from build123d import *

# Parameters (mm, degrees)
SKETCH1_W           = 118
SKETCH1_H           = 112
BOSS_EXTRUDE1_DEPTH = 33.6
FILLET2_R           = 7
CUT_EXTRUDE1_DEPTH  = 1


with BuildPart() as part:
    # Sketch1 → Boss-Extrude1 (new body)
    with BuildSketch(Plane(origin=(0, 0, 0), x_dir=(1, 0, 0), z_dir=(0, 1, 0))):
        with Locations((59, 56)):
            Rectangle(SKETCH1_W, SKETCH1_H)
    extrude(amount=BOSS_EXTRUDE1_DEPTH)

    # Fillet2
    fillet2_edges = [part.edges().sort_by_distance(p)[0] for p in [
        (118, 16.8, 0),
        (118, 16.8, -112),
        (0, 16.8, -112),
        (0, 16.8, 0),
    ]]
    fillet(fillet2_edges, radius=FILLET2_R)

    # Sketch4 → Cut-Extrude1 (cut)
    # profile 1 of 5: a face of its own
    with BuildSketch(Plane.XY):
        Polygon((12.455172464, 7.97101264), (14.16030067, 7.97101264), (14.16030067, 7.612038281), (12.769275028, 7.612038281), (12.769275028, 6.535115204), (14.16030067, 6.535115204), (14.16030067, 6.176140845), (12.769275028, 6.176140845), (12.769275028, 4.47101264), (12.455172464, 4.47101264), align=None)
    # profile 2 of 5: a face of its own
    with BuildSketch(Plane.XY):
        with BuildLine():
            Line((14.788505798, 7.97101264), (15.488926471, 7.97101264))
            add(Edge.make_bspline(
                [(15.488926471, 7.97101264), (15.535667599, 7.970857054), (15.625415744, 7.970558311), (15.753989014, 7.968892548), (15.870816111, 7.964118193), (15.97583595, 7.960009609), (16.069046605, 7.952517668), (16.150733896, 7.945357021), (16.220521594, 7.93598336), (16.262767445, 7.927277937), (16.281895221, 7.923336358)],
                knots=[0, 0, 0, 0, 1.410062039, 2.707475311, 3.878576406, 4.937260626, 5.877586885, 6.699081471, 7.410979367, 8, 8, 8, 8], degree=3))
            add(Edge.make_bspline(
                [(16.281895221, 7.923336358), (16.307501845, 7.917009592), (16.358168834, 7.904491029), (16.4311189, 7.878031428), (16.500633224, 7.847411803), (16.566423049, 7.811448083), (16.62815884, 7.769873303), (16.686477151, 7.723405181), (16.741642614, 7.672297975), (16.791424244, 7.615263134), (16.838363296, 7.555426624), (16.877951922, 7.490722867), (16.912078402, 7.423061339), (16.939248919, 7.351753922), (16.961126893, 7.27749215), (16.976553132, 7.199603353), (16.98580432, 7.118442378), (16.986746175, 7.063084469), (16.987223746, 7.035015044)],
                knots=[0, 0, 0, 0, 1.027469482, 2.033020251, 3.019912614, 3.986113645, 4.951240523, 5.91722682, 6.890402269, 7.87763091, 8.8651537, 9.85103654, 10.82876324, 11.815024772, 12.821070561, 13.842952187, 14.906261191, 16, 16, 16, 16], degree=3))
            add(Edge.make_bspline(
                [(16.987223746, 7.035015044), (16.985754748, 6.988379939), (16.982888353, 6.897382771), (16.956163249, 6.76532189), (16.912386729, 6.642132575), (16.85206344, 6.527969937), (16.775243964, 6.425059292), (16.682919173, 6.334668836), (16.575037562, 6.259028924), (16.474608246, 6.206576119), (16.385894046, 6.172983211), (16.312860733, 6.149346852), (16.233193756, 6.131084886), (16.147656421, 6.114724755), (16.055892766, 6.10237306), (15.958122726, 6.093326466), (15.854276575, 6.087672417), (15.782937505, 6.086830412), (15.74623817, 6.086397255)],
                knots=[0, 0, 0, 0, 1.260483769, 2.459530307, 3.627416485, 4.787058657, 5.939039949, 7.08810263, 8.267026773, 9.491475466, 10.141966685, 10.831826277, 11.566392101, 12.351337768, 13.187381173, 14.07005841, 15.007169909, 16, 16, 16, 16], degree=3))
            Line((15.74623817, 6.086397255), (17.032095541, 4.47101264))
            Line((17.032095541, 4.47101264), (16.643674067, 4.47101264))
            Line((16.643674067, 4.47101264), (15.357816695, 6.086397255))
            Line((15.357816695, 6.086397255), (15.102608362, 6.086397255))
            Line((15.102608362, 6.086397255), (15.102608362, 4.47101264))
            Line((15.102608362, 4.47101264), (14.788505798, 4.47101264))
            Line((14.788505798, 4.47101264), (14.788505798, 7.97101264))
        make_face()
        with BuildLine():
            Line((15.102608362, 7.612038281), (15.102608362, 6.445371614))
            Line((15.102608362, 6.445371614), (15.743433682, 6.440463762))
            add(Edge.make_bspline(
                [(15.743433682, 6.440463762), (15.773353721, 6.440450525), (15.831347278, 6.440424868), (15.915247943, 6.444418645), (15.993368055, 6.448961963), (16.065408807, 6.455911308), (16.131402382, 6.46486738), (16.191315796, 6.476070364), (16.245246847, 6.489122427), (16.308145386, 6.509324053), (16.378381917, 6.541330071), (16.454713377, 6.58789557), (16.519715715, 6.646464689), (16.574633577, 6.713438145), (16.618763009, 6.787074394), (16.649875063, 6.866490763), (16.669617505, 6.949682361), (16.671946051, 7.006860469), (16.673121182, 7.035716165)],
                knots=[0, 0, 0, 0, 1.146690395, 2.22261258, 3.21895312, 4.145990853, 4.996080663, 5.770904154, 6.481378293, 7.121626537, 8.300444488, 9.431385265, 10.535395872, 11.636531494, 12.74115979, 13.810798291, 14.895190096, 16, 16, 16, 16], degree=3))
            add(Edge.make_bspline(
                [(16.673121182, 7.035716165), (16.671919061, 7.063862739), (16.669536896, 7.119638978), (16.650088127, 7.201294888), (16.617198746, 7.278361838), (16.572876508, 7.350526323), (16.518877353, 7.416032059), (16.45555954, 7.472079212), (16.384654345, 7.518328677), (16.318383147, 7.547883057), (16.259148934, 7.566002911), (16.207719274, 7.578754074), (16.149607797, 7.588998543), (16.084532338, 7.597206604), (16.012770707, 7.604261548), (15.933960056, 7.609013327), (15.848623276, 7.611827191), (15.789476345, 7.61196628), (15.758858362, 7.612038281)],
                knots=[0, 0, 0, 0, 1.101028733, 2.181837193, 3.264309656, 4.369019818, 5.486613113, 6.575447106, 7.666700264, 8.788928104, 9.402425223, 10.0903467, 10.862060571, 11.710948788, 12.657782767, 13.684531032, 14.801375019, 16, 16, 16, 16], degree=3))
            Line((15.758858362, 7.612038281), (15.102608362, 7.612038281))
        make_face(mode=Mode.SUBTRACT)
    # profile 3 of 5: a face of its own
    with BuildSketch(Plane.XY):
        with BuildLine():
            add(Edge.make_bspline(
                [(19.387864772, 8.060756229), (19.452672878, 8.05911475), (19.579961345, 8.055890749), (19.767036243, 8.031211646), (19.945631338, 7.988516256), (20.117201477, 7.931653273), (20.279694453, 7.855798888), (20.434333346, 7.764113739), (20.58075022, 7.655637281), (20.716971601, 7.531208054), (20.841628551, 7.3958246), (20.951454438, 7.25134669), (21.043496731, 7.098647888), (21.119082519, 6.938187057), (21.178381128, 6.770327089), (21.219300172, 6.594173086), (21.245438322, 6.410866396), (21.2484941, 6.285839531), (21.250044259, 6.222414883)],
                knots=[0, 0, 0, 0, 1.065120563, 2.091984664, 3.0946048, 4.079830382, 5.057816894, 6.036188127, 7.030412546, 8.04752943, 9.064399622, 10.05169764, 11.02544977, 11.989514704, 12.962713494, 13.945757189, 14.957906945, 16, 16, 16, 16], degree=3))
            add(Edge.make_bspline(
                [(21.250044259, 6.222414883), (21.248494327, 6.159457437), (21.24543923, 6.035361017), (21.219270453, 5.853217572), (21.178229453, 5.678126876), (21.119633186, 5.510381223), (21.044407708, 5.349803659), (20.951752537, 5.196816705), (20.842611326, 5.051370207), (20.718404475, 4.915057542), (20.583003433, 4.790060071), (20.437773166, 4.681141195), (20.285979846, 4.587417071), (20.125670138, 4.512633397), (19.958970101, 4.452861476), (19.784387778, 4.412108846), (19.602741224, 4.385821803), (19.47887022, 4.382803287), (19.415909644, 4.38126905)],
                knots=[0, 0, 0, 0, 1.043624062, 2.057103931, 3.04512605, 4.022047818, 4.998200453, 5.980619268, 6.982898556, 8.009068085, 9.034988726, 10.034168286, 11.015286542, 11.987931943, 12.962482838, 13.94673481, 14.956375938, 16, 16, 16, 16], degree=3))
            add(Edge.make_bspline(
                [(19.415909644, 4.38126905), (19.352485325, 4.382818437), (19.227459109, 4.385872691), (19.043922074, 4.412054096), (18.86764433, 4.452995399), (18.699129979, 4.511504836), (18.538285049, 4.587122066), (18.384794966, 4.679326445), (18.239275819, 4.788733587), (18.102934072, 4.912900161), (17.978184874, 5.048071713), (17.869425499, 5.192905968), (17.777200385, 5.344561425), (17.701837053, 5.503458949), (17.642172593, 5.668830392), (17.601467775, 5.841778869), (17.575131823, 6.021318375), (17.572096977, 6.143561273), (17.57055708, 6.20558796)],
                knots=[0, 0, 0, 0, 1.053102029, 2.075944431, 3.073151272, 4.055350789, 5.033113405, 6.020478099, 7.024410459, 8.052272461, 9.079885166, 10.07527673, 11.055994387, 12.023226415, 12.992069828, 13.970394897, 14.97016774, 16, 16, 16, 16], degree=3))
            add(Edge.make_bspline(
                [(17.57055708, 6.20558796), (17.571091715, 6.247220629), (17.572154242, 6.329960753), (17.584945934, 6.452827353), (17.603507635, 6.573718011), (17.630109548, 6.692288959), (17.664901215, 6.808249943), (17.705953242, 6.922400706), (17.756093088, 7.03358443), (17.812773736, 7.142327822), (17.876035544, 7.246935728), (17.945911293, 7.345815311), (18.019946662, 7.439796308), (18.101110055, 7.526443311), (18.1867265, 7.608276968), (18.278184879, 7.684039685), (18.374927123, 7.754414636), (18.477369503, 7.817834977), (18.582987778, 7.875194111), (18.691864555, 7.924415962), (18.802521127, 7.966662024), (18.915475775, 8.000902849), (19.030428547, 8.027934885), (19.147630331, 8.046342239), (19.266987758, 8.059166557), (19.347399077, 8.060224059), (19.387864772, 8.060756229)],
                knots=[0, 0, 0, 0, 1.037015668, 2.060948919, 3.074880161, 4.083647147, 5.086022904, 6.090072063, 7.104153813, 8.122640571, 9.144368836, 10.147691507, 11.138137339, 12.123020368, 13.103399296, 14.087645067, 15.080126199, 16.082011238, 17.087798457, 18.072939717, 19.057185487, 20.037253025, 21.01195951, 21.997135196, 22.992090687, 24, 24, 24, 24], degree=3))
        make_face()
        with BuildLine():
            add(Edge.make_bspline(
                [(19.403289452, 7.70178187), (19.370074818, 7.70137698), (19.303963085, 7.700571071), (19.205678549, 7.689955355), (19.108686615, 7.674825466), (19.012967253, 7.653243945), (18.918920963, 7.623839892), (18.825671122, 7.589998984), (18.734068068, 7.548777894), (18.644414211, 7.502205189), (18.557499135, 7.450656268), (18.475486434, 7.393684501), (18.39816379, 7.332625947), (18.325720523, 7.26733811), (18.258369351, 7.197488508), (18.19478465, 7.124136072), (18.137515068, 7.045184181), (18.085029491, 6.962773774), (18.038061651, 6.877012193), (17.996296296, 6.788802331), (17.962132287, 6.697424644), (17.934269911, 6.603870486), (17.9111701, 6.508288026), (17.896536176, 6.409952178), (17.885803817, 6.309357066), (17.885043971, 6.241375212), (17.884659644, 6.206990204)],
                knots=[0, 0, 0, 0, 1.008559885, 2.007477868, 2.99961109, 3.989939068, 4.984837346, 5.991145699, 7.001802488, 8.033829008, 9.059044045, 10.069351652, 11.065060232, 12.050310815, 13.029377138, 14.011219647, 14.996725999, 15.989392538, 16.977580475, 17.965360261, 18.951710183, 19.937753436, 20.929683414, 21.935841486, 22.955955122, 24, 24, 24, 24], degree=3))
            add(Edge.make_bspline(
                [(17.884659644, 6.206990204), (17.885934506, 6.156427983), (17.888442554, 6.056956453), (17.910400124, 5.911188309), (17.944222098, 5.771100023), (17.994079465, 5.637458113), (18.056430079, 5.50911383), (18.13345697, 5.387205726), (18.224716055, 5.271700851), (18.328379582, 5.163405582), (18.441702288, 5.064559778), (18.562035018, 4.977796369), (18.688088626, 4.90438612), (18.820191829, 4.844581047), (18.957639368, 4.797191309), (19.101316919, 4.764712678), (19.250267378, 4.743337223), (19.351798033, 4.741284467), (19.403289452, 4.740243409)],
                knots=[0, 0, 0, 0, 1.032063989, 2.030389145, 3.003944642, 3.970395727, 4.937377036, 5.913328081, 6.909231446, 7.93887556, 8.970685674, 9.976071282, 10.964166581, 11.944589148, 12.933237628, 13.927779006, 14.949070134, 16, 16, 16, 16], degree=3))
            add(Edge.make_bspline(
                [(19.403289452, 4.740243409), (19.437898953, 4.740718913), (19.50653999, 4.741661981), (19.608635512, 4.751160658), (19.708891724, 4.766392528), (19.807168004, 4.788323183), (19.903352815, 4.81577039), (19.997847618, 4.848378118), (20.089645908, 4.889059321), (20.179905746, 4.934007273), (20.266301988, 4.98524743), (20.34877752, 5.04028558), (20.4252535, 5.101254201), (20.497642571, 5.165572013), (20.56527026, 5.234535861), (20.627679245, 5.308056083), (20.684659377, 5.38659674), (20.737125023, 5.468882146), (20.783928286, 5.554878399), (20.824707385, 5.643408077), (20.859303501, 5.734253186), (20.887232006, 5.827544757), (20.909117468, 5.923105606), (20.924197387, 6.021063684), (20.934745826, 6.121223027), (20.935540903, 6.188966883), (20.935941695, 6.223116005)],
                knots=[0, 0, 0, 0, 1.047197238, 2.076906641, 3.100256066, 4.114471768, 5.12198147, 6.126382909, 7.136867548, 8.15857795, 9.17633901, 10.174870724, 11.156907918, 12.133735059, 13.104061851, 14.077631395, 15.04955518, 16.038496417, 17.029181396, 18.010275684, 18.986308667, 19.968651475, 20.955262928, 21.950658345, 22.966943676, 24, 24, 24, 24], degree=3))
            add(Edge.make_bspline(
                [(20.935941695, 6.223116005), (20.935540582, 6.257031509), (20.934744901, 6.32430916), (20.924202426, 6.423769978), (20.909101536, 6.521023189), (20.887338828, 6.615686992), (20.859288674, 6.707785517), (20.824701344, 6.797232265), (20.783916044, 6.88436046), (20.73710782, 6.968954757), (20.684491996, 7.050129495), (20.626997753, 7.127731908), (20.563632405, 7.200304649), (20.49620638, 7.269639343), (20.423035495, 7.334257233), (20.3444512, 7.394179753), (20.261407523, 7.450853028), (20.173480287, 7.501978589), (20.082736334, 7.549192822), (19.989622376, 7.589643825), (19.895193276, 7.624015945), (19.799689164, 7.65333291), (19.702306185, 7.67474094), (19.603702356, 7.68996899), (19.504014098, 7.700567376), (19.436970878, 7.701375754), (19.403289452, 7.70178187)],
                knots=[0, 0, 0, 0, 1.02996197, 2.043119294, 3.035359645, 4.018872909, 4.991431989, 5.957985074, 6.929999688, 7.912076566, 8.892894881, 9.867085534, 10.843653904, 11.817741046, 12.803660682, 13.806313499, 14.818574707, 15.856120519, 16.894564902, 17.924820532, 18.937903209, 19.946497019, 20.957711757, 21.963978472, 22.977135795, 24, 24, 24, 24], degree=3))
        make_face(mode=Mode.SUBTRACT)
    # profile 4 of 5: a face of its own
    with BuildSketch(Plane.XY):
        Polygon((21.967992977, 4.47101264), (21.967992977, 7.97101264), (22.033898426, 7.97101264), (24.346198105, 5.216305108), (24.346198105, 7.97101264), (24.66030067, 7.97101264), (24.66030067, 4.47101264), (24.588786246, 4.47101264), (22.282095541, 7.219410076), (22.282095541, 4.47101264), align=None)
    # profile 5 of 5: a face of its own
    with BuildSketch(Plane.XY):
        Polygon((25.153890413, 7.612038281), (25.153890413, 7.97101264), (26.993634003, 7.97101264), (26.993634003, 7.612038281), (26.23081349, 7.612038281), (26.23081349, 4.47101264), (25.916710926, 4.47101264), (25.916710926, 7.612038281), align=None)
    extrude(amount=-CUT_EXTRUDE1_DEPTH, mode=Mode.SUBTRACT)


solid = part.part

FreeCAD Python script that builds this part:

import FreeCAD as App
import Part
import Sketcher

V = App.Vector


def edges_at(feature, points):
    """Names of the edges that pass closest to the given points."""
    edges = feature.Shape.Edges
    near = lambda p: min(range(len(edges)), key=lambda i: edges[i].distToShape(Part.Vertex(*p))[0])
    return sorted({f"Edge{near(p) + 1}" for p in points})

doc = App.newDocument("Part")
body = doc.addObject("PartDesign::Body", "Body")

sketch1 = body.newObject("Sketcher::SketchObject", "Sketch")
sketch1.AttachmentSupport = (doc.getObject("XZ_Plane"), [""])
sketch1.MapMode = "FlatFace"
sketch1.addGeometry(Part.LineSegment(V(0, -112, 0), V(0, 0, 0)), False)
sketch1.addGeometry(Part.LineSegment(V(0, 0, 0), V(118, 0, 0)), False)
sketch1.addGeometry(Part.LineSegment(V(118, 0, 0), V(118, -112, 0)), False)
sketch1.addGeometry(Part.LineSegment(V(118, -112, 0), V(0, -112, 0)), False)
sketch1.addConstraint(Sketcher.Constraint("Coincident", 0, 2, 1, 1))
sketch1.addConstraint(Sketcher.Constraint("Coincident", 1, 2, 2, 1))
sketch1.addConstraint(Sketcher.Constraint("Coincident", 2, 2, 3, 1))
sketch1.addConstraint(Sketcher.Constraint("Coincident", 3, 2, 0, 1))
sketch1.addConstraint(Sketcher.Constraint("Vertical", 0))
sketch1.addConstraint(Sketcher.Constraint("Horizontal", 1))
sketch1.addConstraint(Sketcher.Constraint("Vertical", 2))
sketch1.addConstraint(Sketcher.Constraint("Horizontal", 3))
sketch1.addConstraint(Sketcher.Constraint("Coincident", 0, 2, -1, 1))
sketch1.addConstraint(Sketcher.Constraint("DistanceX", 1, 1, 1, 2, 118.0))
sketch1.addConstraint(Sketcher.Constraint("DistanceY", 0, 1, 0, 2, 112.0))
pad1 = body.newObject("PartDesign::Pad", "Pad")
pad1.Profile = sketch1
pad1.Length = 33.6
pad1.Reversed = True
doc.recompute()

fillet = body.newObject("PartDesign::Fillet", "Fillet")
fillet.Base = (pad1, edges_at(pad1, [
    (118, 16.8, 0),
    (118, 16.8, -112),
    (0, 16.8, -112),
    (0, 16.8, 0),
]))
fillet.Radius = 7

sketch2 = body.newObject("Sketcher::SketchObject", "Sketch001")
sketch2.AttachmentSupport = (doc.getObject("XY_Plane"), [""])
sketch2.MapMode = "FlatFace"
sketch2.addGeometry(Part.LineSegment(V(14.160301, 7.971013, 0), V(12.455172, 7.971013, 0)), False)
sketch2.addGeometry(Part.LineSegment(V(12.455172, 7.971013, 0), V(12.455172, 4.471013, 0)), False)
sketch2.addGeometry(Part.LineSegment(V(12.455172, 4.471013, 0), V(12.769275, 4.471013, 0)), False)
sketch2.addGeometry(Part.LineSegment(V(12.769275, 4.471013, 0), V(12.769275, 6.176141, 0)), False)
sketch2.addGeometry(Part.LineSegment(V(12.769275, 6.176141, 0), V(14.160301, 6.176141, 0)), False)
sketch2.addGeometry(Part.LineSegment(V(14.160301, 6.176141, 0), V(14.160301, 6.535115, 0)), False)
sketch2.addGeometry(Part.LineSegment(V(14.160301, 6.535115, 0), V(12.769275, 6.535115, 0)), False)
sketch2.addGeometry(Part.LineSegment(V(12.769275, 6.535115, 0), V(12.769275, 7.612038, 0)), False)
sketch2.addGeometry(Part.LineSegment(V(12.769275, 7.612038, 0), V(14.160301, 7.612038, 0)), False)
sketch2.addGeometry(Part.LineSegment(V(14.160301, 7.612038, 0), V(14.160301, 7.971013, 0)), False)
sketch2.addGeometry(Part.LineSegment(V(15.488926, 7.971013, 0), V(14.788506, 7.971013, 0)), False)
sketch2.addGeometry(Part.LineSegment(V(14.788506, 7.971013, 0), V(14.788506, 4.471013, 0)), False)
sketch2.addGeometry(Part.LineSegment(V(14.788506, 4.471013, 0), V(15.102608, 4.471013, 0)), False)
sketch2.addGeometry(Part.LineSegment(V(15.102608, 4.471013, 0), V(15.102608, 6.086397, 0)), False)
sketch2.addGeometry(Part.LineSegment(V(15.102608, 6.086397, 0), V(15.357817, 6.086397, 0)), False)
sketch2.addGeometry(Part.LineSegment(V(15.357817, 6.086397, 0), V(16.643674, 4.471013, 0)), False)
sketch2.addGeometry(Part.LineSegment(V(16.643674, 4.471013, 0), V(17.032096, 4.471013, 0)), False)
sketch2.addGeometry(Part.LineSegment(V(17.032096, 4.471013, 0), V(15.746238, 6.086397, 0)), False)
sketch2.addGeometry(Part.BSplineCurve([V(16.987224, 7.035015, 0), V(16.985755, 6.98838, 0), V(16.982888, 6.897383, 0), V(16.956163, 6.765322, 0), V(16.912387, 6.642133, 0), V(16.852063, 6.52797, 0), V(16.775244, 6.425059, 0), V(16.682919, 6.334669, 0), V(16.575038, 6.259029, 0), V(16.474608, 6.206576, 0), V(16.385894, 6.172983, 0), V(16.312861, 6.149347, 0), V(16.233194, 6.131085, 0), V(16.147656, 6.114725, 0), V(16.055893, 6.102373, 0), V(15.958123, 6.093326, 0), V(15.854277, 6.087672, 0), V(15.782938, 6.08683, 0), V(15.746238, 6.086397, 0)], [4, 1, 1, 1, 1, 1, 1, 1, 1, 1, 1, 1, 1, 1, 1, 1, 4], [0, 1.260483769, 2.459530307, 3.627416485, 4.787058657, 5.939039949, 7.08810263, 8.267026773, 9.491475466, 10.141966685, 10.831826277, 11.566392101, 12.351337768, 13.187381173, 14.07005841, 15.007169909, 16], False, 3, [1, 1, 1, 1, 1, 1, 1, 1, 1, 1, 1, 1, 1, 1, 1, 1, 1, 1, 1], False), False)
sketch2.addGeometry(Part.BSplineCurve([V(16.281895, 7.923336, 0), V(16.307502, 7.91701, 0), V(16.358169, 7.904491, 0), V(16.431119, 7.878031, 0), V(16.500633, 7.847412, 0), V(16.566423, 7.811448, 0), V(16.628159, 7.769873, 0), V(16.686477, 7.723405, 0), V(16.741643, 7.672298, 0), V(16.791424, 7.615263, 0), V(16.838363, 7.555427, 0), V(16.877952, 7.490723, 0), V(16.912078, 7.423061, 0), V(16.939249, 7.351754, 0), V(16.961127, 7.277492, 0), V(16.976553, 7.199603, 0), V(16.985804, 7.118442, 0), V(16.986746, 7.063084, 0), V(16.987224, 7.035015, 0)], [4, 1, 1, 1, 1, 1, 1, 1, 1, 1, 1, 1, 1, 1, 1, 1, 4], [0, 1.027469482, 2.033020251, 3.019912614, 3.986113645, 4.951240523, 5.91722682, 6.890402269, 7.87763091, 8.8651537, 9.85103654, 10.82876324, 11.815024772, 12.821070561, 13.842952187, 14.906261191, 16], False, 3, [1, 1, 1, 1, 1, 1, 1, 1, 1, 1, 1, 1, 1, 1, 1, 1, 1, 1, 1], False), False)
sketch2.addGeometry(Part.BSplineCurve([V(15.488926, 7.971013, 0), V(15.535668, 7.970857, 0), V(15.625416, 7.970558, 0), V(15.753989, 7.968893, 0), V(15.870816, 7.964118, 0), V(15.975836, 7.96001, 0), V(16.069047, 7.952518, 0), V(16.150734, 7.945357, 0), V(16.220522, 7.935983, 0), V(16.262767, 7.927278, 0), V(16.281895, 7.923336, 0)], [4, 1, 1, 1, 1, 1, 1, 1, 4], [0, 1.410062039, 2.707475311, 3.878576406, 4.937260626, 5.877586885, 6.699081471, 7.410979367, 8], False, 3, [1, 1, 1, 1, 1, 1, 1, 1, 1, 1, 1], False), False)
sketch2.addGeometry(Part.LineSegment(V(15.102608, 7.612038, 0), V(15.758858, 7.612038, 0)), False)
sketch2.addGeometry(Part.BSplineCurve([V(16.673121, 7.035716, 0), V(16.671919, 7.063863, 0), V(16.669537, 7.119639, 0), V(16.650088, 7.201295, 0), V(16.617199, 7.278362, 0), V(16.572877, 7.350526, 0), V(16.518877, 7.416032, 0), V(16.45556, 7.472079, 0), V(16.384654, 7.518329, 0), V(16.318383, 7.547883, 0), V(16.259149, 7.566003, 0), V(16.207719, 7.578754, 0), V(16.149608, 7.588999, 0), V(16.084532, 7.597207, 0), V(16.012771, 7.604262, 0), V(15.93396, 7.609013, 0), V(15.848623, 7.611827, 0), V(15.789476, 7.611966, 0), V(15.758858, 7.612038, 0)], [4, 1, 1, 1, 1, 1, 1, 1, 1, 1, 1, 1, 1, 1, 1, 1, 4], [0, 1.101028733, 2.181837193, 3.264309656, 4.369019818, 5.486613113, 6.575447106, 7.666700264, 8.788928104, 9.402425223, 10.0903467, 10.862060571, 11.710948788, 12.657782767, 13.684531032, 14.801375019, 16], False, 3, [1, 1, 1, 1, 1, 1, 1, 1, 1, 1, 1, 1, 1, 1, 1, 1, 1, 1, 1], False), False)
sketch2.addGeometry(Part.BSplineCurve([V(15.743434, 6.440464, 0), V(15.773354, 6.440451, 0), V(15.831347, 6.440425, 0), V(15.915248, 6.444419, 0), V(15.993368, 6.448962, 0), V(16.065409, 6.455911, 0), V(16.131402, 6.464867, 0), V(16.191316, 6.47607, 0), V(16.245247, 6.489122, 0), V(16.308145, 6.509324, 0), V(16.378382, 6.54133, 0), V(16.454713, 6.587896, 0), V(16.519716, 6.646465, 0), V(16.574634, 6.713438, 0), V(16.618763, 6.787074, 0), V(16.649875, 6.866491, 0), V(16.669618, 6.949682, 0), V(16.671946, 7.00686, 0), V(16.673121, 7.035716, 0)], [4, 1, 1, 1, 1, 1, 1, 1, 1, 1, 1, 1, 1, 1, 1, 1, 4], [0, 1.146690395, 2.22261258, 3.21895312, 4.145990853, 4.996080663, 5.770904154, 6.481378293, 7.121626537, 8.300444488, 9.431385265, 10.535395872, 11.636531494, 12.74115979, 13.810798291, 14.895190096, 16], False, 3, [1, 1, 1, 1, 1, 1, 1, 1, 1, 1, 1, 1, 1, 1, 1, 1, 1, 1, 1], False), False)
sketch2.addGeometry(Part.LineSegment(V(15.743434, 6.440464, 0), V(15.102608, 6.445372, 0)), False)
sketch2.addGeometry(Part.LineSegment(V(15.102608, 6.445372, 0), V(15.102608, 7.612038, 0)), False)
sketch2.addGeometry(Part.BSplineCurve([V(19.387865, 8.060756, 0), V(19.452673, 8.059115, 0), V(19.579961, 8.055891, 0), V(19.767036, 8.031212, 0), V(19.945631, 7.988516, 0), V(20.117201, 7.931653, 0), V(20.279694, 7.855799, 0), V(20.434333, 7.764114, 0), V(20.58075, 7.655637, 0), V(20.716972, 7.531208, 0), V(20.841629, 7.395825, 0), V(20.951454, 7.251347, 0), V(21.043497, 7.098648, 0), V(21.119083, 6.938187, 0), V(21.178381, 6.770327, 0), V(21.2193, 6.594173, 0), V(21.245438, 6.410866, 0), V(21.248494, 6.28584, 0), V(21.250044, 6.222415, 0)], [4, 1, 1, 1, 1, 1, 1, 1, 1, 1, 1, 1, 1, 1, 1, 1, 4], [0, 1.065120563, 2.091984664, 3.0946048, 4.079830382, 5.057816894, 6.036188127, 7.030412546, 8.04752943, 9.064399622, 10.05169764, 11.02544977, 11.989514704, 12.962713494, 13.945757189, 14.957906945, 16], False, 3, [1, 1, 1, 1, 1, 1, 1, 1, 1, 1, 1, 1, 1, 1, 1, 1, 1, 1, 1], False), False)
sketch2.addGeometry(Part.BSplineCurve([V(17.570557, 6.205588, 0), V(17.571092, 6.247221, 0), V(17.572154, 6.329961, 0), V(17.584946, 6.452827, 0), V(17.603508, 6.573718, 0), V(17.63011, 6.692289, 0), V(17.664901, 6.80825, 0), V(17.705953, 6.922401, 0), V(17.756093, 7.033584, 0), V(17.812774, 7.142328, 0), V(17.876036, 7.246936, 0), V(17.945911, 7.345815, 0), V(18.019947, 7.439796, 0), V(18.10111, 7.526443, 0), V(18.186726, 7.608277, 0), V(18.278185, 7.68404, 0), V(18.374927, 7.754415, 0), V(18.47737, 7.817835, 0), V(18.582988, 7.875194, 0), V(18.691865, 7.924416, 0), V(18.802521, 7.966662, 0), V(18.915476, 8.000903, 0), V(19.030429, 8.027935, 0), V(19.14763, 8.046342, 0), V(19.266988, 8.059167, 0), V(19.347399, 8.060224, 0), V(19.387865, 8.060756, 0)], [4, 1, 1, 1, 1, 1, 1, 1, 1, 1, 1, 1, 1, 1, 1, 1, 1, 1, 1, 1, 1, 1, 1, 1, 4], [0, 1.037015668, 2.060948919, 3.074880161, 4.083647147, 5.086022904, 6.090072063, 7.104153813, 8.122640571, 9.144368836, 10.147691507, 11.138137339, 12.123020368, 13.103399296, 14.087645067, 15.080126199, 16.082011238, 17.087798457, 18.072939717, 19.057185487, 20.037253025, 21.01195951, 21.997135196, 22.992090687, 24], False, 3, [1, 1, 1, 1, 1, 1, 1, 1, 1, 1, 1, 1, 1, 1, 1, 1, 1, 1, 1, 1, 1, 1, 1, 1, 1, 1, 1], False), False)
sketch2.addGeometry(Part.BSplineCurve([V(19.41591, 4.381269, 0), V(19.352485, 4.382818, 0), V(19.227459, 4.385873, 0), V(19.043922, 4.412054, 0), V(18.867644, 4.452995, 0), V(18.69913, 4.511505, 0), V(18.538285, 4.587122, 0), V(18.384795, 4.679326, 0), V(18.239276, 4.788734, 0), V(18.102934, 4.9129, 0), V(17.978185, 5.048072, 0), V(17.869425, 5.192906, 0), V(17.7772, 5.344561, 0), V(17.701837, 5.503459, 0), V(17.642173, 5.66883, 0), V(17.601468, 5.841779, 0), V(17.575132, 6.021318, 0), V(17.572097, 6.143561, 0), V(17.570557, 6.205588, 0)], [4, 1, 1, 1, 1, 1, 1, 1, 1, 1, 1, 1, 1, 1, 1, 1, 4], [0, 1.053102029, 2.075944431, 3.073151272, 4.055350789, 5.033113405, 6.020478099, 7.024410459, 8.052272461, 9.079885166, 10.07527673, 11.055994387, 12.023226415, 12.992069828, 13.970394897, 14.97016774, 16], False, 3, [1, 1, 1, 1, 1, 1, 1, 1, 1, 1, 1, 1, 1, 1, 1, 1, 1, 1, 1], False), False)
sketch2.addGeometry(Part.BSplineCurve([V(21.250044, 6.222415, 0), V(21.248494, 6.159457, 0), V(21.245439, 6.035361, 0), V(21.21927, 5.853218, 0), V(21.178229, 5.678127, 0), V(21.119633, 5.510381, 0), V(21.044408, 5.349804, 0), V(20.951753, 5.196817, 0), V(20.842611, 5.05137, 0), V(20.718404, 4.915058, 0), V(20.583003, 4.79006, 0), V(20.437773, 4.681141, 0), V(20.28598, 4.587417, 0), V(20.12567, 4.512633, 0), V(19.95897, 4.452861, 0), V(19.784388, 4.412109, 0), V(19.602741, 4.385822, 0), V(19.47887, 4.382803, 0), V(19.41591, 4.381269, 0)], [4, 1, 1, 1, 1, 1, 1, 1, 1, 1, 1, 1, 1, 1, 1, 1, 4], [0, 1.043624062, 2.057103931, 3.04512605, 4.022047818, 4.998200453, 5.980619268, 6.982898556, 8.009068085, 9.034988726, 10.034168286, 11.015286542, 11.987931943, 12.962482838, 13.94673481, 14.956375938, 16], False, 3, [1, 1, 1, 1, 1, 1, 1, 1, 1, 1, 1, 1, 1, 1, 1, 1, 1, 1, 1], False), False)
sketch2.addGeometry(Part.BSplineCurve([V(20.935942, 6.223116, 0), V(20.935541, 6.257032, 0), V(20.934745, 6.324309, 0), V(20.924202, 6.42377, 0), V(20.909102, 6.521023, 0), V(20.887339, 6.615687, 0), V(20.859289, 6.707786, 0), V(20.824701, 6.797232, 0), V(20.783916, 6.88436, 0), V(20.737108, 6.968955, 0), V(20.684492, 7.050129, 0), V(20.626998, 7.127732, 0), V(20.563632, 7.200305, 0), V(20.496206, 7.269639, 0), V(20.423035, 7.334257, 0), V(20.344451, 7.39418, 0), V(20.261408, 7.450853, 0), V(20.17348, 7.501979, 0), V(20.082736, 7.549193, 0), V(19.989622, 7.589644, 0), V(19.895193, 7.624016, 0), V(19.799689, 7.653333, 0), V(19.702306, 7.674741, 0), V(19.603702, 7.689969, 0), V(19.504014, 7.700567, 0), V(19.436971, 7.701376, 0), V(19.403289, 7.701782, 0)], [4, 1, 1, 1, 1, 1, 1, 1, 1, 1, 1, 1, 1, 1, 1, 1, 1, 1, 1, 1, 1, 1, 1, 1, 4], [0, 1.02996197, 2.043119294, 3.035359645, 4.018872909, 4.991431989, 5.957985074, 6.929999688, 7.912076566, 8.892894881, 9.867085534, 10.843653904, 11.817741046, 12.803660682, 13.806313499, 14.818574707, 15.856120519, 16.894564902, 17.924820532, 18.937903209, 19.946497019, 20.957711757, 21.963978472, 22.977135795, 24], False, 3, [1, 1, 1, 1, 1, 1, 1, 1, 1, 1, 1, 1, 1, 1, 1, 1, 1, 1, 1, 1, 1, 1, 1, 1, 1, 1, 1], False), False)
sketch2.addGeometry(Part.BSplineCurve([V(19.403289, 4.740243, 0), V(19.437899, 4.740719, 0), V(19.50654, 4.741662, 0), V(19.608636, 4.751161, 0), V(19.708892, 4.766393, 0), V(19.807168, 4.788323, 0), V(19.903353, 4.81577, 0), V(19.997848, 4.848378, 0), V(20.089646, 4.889059, 0), V(20.179906, 4.934007, 0), V(20.266302, 4.985247, 0), V(20.348778, 5.040286, 0), V(20.425254, 5.101254, 0), V(20.497643, 5.165572, 0), V(20.56527, 5.234536, 0), V(20.627679, 5.308056, 0), V(20.684659, 5.386597, 0), V(20.737125, 5.468882, 0), V(20.783928, 5.554878, 0), V(20.824707, 5.643408, 0), V(20.859304, 5.734253, 0), V(20.887232, 5.827545, 0), V(20.909117, 5.923106, 0), V(20.924197, 6.021064, 0), V(20.934746, 6.121223, 0), V(20.935541, 6.188967, 0), V(20.935942, 6.223116, 0)], [4, 1, 1, 1, 1, 1, 1, 1, 1, 1, 1, 1, 1, 1, 1, 1, 1, 1, 1, 1, 1, 1, 1, 1, 4], [0, 1.047197238, 2.076906641, 3.100256066, 4.114471768, 5.12198147, 6.126382909, 7.136867548, 8.15857795, 9.17633901, 10.174870724, 11.156907918, 12.133735059, 13.104061851, 14.077631395, 15.04955518, 16.038496417, 17.029181396, 18.010275684, 18.986308667, 19.968651475, 20.955262928, 21.950658345, 22.966943676, 24], False, 3, [1, 1, 1, 1, 1, 1, 1, 1, 1, 1, 1, 1, 1, 1, 1, 1, 1, 1, 1, 1, 1, 1, 1, 1, 1, 1, 1], False), False)
sketch2.addGeometry(Part.BSplineCurve([V(17.88466, 6.20699, 0), V(17.885935, 6.156428, 0), V(17.888443, 6.056956, 0), V(17.9104, 5.911188, 0), V(17.944222, 5.7711, 0), V(17.994079, 5.637458, 0), V(18.05643, 5.509114, 0), V(18.133457, 5.387206, 0), V(18.224716, 5.271701, 0), V(18.32838, 5.163406, 0), V(18.441702, 5.06456, 0), V(18.562035, 4.977796, 0), V(18.688089, 4.904386, 0), V(18.820192, 4.844581, 0), V(18.957639, 4.797191, 0), V(19.101317, 4.764713, 0), V(19.250267, 4.743337, 0), V(19.351798, 4.741284, 0), V(19.403289, 4.740243, 0)], [4, 1, 1, 1, 1, 1, 1, 1, 1, 1, 1, 1, 1, 1, 1, 1, 4], [0, 1.032063989, 2.030389145, 3.003944642, 3.970395727, 4.937377036, 5.913328081, 6.909231446, 7.93887556, 8.970685674, 9.976071282, 10.964166581, 11.944589148, 12.933237628, 13.927779006, 14.949070134, 16], False, 3, [1, 1, 1, 1, 1, 1, 1, 1, 1, 1, 1, 1, 1, 1, 1, 1, 1, 1, 1], False), False)
sketch2.addGeometry(Part.BSplineCurve([V(19.403289, 7.701782, 0), V(19.370075, 7.701377, 0), V(19.303963, 7.700571, 0), V(19.205679, 7.689955, 0), V(19.108687, 7.674825, 0), V(19.012967, 7.653244, 0), V(18.918921, 7.62384, 0), V(18.825671, 7.589999, 0), V(18.734068, 7.548778, 0), V(18.644414, 7.502205, 0), V(18.557499, 7.450656, 0), V(18.475486, 7.393685, 0), V(18.398164, 7.332626, 0), V(18.325721, 7.267338, 0), V(18.258369, 7.197489, 0), V(18.194785, 7.124136, 0), V(18.137515, 7.045184, 0), V(18.085029, 6.962774, 0), V(18.038062, 6.877012, 0), V(17.996296, 6.788802, 0), V(17.962132, 6.697425, 0), V(17.93427, 6.60387, 0), V(17.91117, 6.508288, 0), V(17.896536, 6.409952, 0), V(17.885804, 6.309357, 0), V(17.885044, 6.241375, 0), V(17.88466, 6.20699, 0)], [4, 1, 1, 1, 1, 1, 1, 1, 1, 1, 1, 1, 1, 1, 1, 1, 1, 1, 1, 1, 1, 1, 1, 1, 4], [0, 1.008559885, 2.007477868, 2.99961109, 3.989939068, 4.984837346, 5.991145699, 7.001802488, 8.033829008, 9.059044045, 10.069351652, 11.065060232, 12.050310815, 13.029377138, 14.011219647, 14.996725999, 15.989392538, 16.977580475, 17.965360261, 18.951710183, 19.937753436, 20.929683414, 21.935841486, 22.955955122, 24], False, 3, [1, 1, 1, 1, 1, 1, 1, 1, 1, 1, 1, 1, 1, 1, 1, 1, 1, 1, 1, 1, 1, 1, 1, 1, 1, 1, 1], False), False)
sketch2.addGeometry(Part.LineSegment(V(21.967993, 7.971013, 0), V(21.967993, 4.471013, 0)), False)
sketch2.addGeometry(Part.LineSegment(V(21.967993, 4.471013, 0), V(22.282096, 4.471013, 0)), False)
sketch2.addGeometry(Part.LineSegment(V(22.282096, 4.471013, 0), V(22.282096, 7.21941, 0)), False)
sketch2.addGeometry(Part.LineSegment(V(22.282096, 7.21941, 0), V(24.588786, 4.471013, 0)), False)
sketch2.addGeometry(Part.LineSegment(V(24.588786, 4.471013, 0), V(24.660301, 4.471013, 0)), False)
sketch2.addGeometry(Part.LineSegment(V(24.660301, 4.471013, 0), V(24.660301, 7.971013, 0)), False)
sketch2.addGeometry(Part.LineSegment(V(24.660301, 7.971013, 0), V(24.346198, 7.971013, 0)), False)
sketch2.addGeometry(Part.LineSegment(V(24.346198, 7.971013, 0), V(24.346198, 5.216305, 0)), False)
sketch2.addGeometry(Part.LineSegment(V(24.346198, 5.216305, 0), V(22.033898, 7.971013, 0)), False)
sketch2.addGeometry(Part.LineSegment(V(22.033898, 7.971013, 0), V(21.967993, 7.971013, 0)), False)
sketch2.addGeometry(Part.LineSegment(V(25.15389, 7.971013, 0), V(25.15389, 7.612038, 0)), False)
sketch2.addGeometry(Part.LineSegment(V(25.15389, 7.612038, 0), V(25.916711, 7.612038, 0)), False)
sketch2.addGeometry(Part.LineSegment(V(25.916711, 7.612038, 0), V(25.916711, 4.471013, 0)), False)
sketch2.addGeometry(Part.LineSegment(V(25.916711, 4.471013, 0), V(26.230813, 4.471013, 0)), False)
sketch2.addGeometry(Part.LineSegment(V(26.230813, 4.471013, 0), V(26.230813, 7.612038, 0)), False)
sketch2.addGeometry(Part.LineSegment(V(26.230813, 7.612038, 0), V(26.993634, 7.612038, 0)), False)
sketch2.addGeometry(Part.LineSegment(V(26.993634, 7.612038, 0), V(26.993634, 7.971013, 0)), False)
sketch2.addGeometry(Part.LineSegment(V(26.993634, 7.971013, 0), V(25.15389, 7.971013, 0)), False)
sketch2.addConstraint(Sketcher.Constraint("Block", 18))
sketch2.addConstraint(Sketcher.Constraint("Block", 19))
sketch2.addConstraint(Sketcher.Constraint("Block", 20))
sketch2.addConstraint(Sketcher.Constraint("Block", 22))
sketch2.addConstraint(Sketcher.Constraint("Block", 23))
sketch2.addConstraint(Sketcher.Constraint("Block", 26))
sketch2.addConstraint(Sketcher.Constraint("Block", 27))
sketch2.addConstraint(Sketcher.Constraint("Block", 28))
sketch2.addConstraint(Sketcher.Constraint("Block", 29))
sketch2.addConstraint(Sketcher.Constraint("Block", 30))
sketch2.addConstraint(Sketcher.Constraint("Block", 31))
sketch2.addConstraint(Sketcher.Constraint("Block", 32))
sketch2.addConstraint(Sketcher.Constraint("Block", 33))
sketch2.addConstraint(Sketcher.Constraint("Coincident", 0, 2, 1, 1))
sketch2.addConstraint(Sketcher.Constraint("Coincident", 1, 2, 2, 1))
sketch2.addConstraint(Sketcher.Constraint("Coincident", 2, 2, 3, 1))
sketch2.addConstraint(Sketcher.Constraint("Coincident", 3, 2, 4, 1))
sketch2.addConstraint(Sketcher.Constraint("Coincident", 4, 2, 5, 1))
sketch2.addConstraint(Sketcher.Constraint("Coincident", 5, 2, 6, 1))
sketch2.addConstraint(Sketcher.Constraint("Coincident", 6, 2, 7, 1))
sketch2.addConstraint(Sketcher.Constraint("Coincident", 7, 2, 8, 1))
sketch2.addConstraint(Sketcher.Constraint("Coincident", 8, 2, 9, 1))
sketch2.addConstraint(Sketcher.Constraint("Coincident", 9, 2, 0, 1))
sketch2.addConstraint(Sketcher.Constraint("Coincident", 10, 2, 11, 1))
sketch2.addConstraint(Sketcher.Constraint("Coincident", 11, 2, 12, 1))
sketch2.addConstraint(Sketcher.Constraint("Coincident", 12, 2, 13, 1))
sketch2.addConstraint(Sketcher.Constraint("Coincident", 13, 2, 14, 1))
sketch2.addConstraint(Sketcher.Constraint("Coincident", 14, 2, 15, 1))
sketch2.addConstraint(Sketcher.Constraint("Coincident", 15, 2, 16, 1))
sketch2.addConstraint(Sketcher.Constraint("Coincident", 16, 2, 17, 1))
sketch2.addConstraint(Sketcher.Constraint("Coincident", 17, 2, 18, 2))
sketch2.addConstraint(Sketcher.Constraint("Coincident", 20, 1, 10, 1))
sketch2.addConstraint(Sketcher.Constraint("Coincident", 21, 2, 22, 2))
sketch2.addConstraint(Sketcher.Constraint("Coincident", 23, 1, 24, 1))
sketch2.addConstraint(Sketcher.Constraint("Coincident", 24, 2, 25, 1))
sketch2.addConstraint(Sketcher.Constraint("Coincident", 25, 2, 21, 1))
sketch2.addConstraint(Sketcher.Constraint("Coincident", 34, 2, 35, 1))
sketch2.addConstraint(Sketcher.Constraint("Coincident", 35, 2, 36, 1))
sketch2.addConstraint(Sketcher.Constraint("Coincident", 36, 2, 37, 1))
sketch2.addConstraint(Sketcher.Constraint("Coincident", 37, 2, 38, 1))
sketch2.addConstraint(Sketcher.Constraint("Coincident", 38, 2, 39, 1))
sketch2.addConstraint(Sketcher.Constraint("Coincident", 39, 2, 40, 1))
sketch2.addConstraint(Sketcher.Constraint("Coincident", 40, 2, 41, 1))
sketch2.addConstraint(Sketcher.Constraint("Coincident", 41, 2, 42, 1))
sketch2.addConstraint(Sketcher.Constraint("Coincident", 42, 2, 43, 1))
sketch2.addConstraint(Sketcher.Constraint("Coincident", 43, 2, 34, 1))
sketch2.addConstraint(Sketcher.Constraint("Coincident", 44, 2, 45, 1))
sketch2.addConstraint(Sketcher.Constraint("Coincident", 45, 2, 46, 1))
sketch2.addConstraint(Sketcher.Constraint("Coincident", 46, 2, 47, 1))
sketch2.addConstraint(Sketcher.Constraint("Coincident", 47, 2, 48, 1))
sketch2.addConstraint(Sketcher.Constraint("Coincident", 48, 2, 49, 1))
sketch2.addConstraint(Sketcher.Constraint("Coincident", 49, 2, 50, 1))
sketch2.addConstraint(Sketcher.Constraint("Coincident", 50, 2, 51, 1))
sketch2.addConstraint(Sketcher.Constraint("Coincident", 51, 2, 44, 1))
sketch2.addConstraint(Sketcher.Constraint("Horizontal", 0))
sketch2.addConstraint(Sketcher.Constraint("Vertical", 1))
sketch2.addConstraint(Sketcher.Constraint("Horizontal", 2))
sketch2.addConstraint(Sketcher.Constraint("Vertical", 3))
sketch2.addConstraint(Sketcher.Constraint("Horizontal", 4))
sketch2.addConstraint(Sketcher.Constraint("Vertical", 5))
sketch2.addConstraint(Sketcher.Constraint("Horizontal", 6))
sketch2.addConstraint(Sketcher.Constraint("Vertical", 7))
sketch2.addConstraint(Sketcher.Constraint("Horizontal", 8))
sketch2.addConstraint(Sketcher.Constraint("Vertical", 9))
sketch2.addConstraint(Sketcher.Constraint("Horizontal", 10))
sketch2.addConstraint(Sketcher.Constraint("Vertical", 11))
sketch2.addConstraint(Sketcher.Constraint("Horizontal", 12))
sketch2.addConstraint(Sketcher.Constraint("Vertical", 13))
sketch2.addConstraint(Sketcher.Constraint("Horizontal", 14))
sketch2.addConstraint(Sketcher.Constraint("Horizontal", 16))
sketch2.addConstraint(Sketcher.Constraint("Horizontal", 21))
sketch2.addConstraint(Sketcher.Constraint("Vertical", 25))
sketch2.addConstraint(Sketcher.Constraint("Vertical", 34))
sketch2.addConstraint(Sketcher.Constraint("Horizontal", 35))
sketch2.addConstraint(Sketcher.Constraint("Vertical", 36))
sketch2.addConstraint(Sketcher.Constraint("Horizontal", 38))
sketch2.addConstraint(Sketcher.Constraint("Vertical", 39))
sketch2.addConstraint(Sketcher.Constraint("Horizontal", 40))
sketch2.addConstraint(Sketcher.Constraint("Vertical", 41))
sketch2.addConstraint(Sketcher.Constraint("Horizontal", 43))
sketch2.addConstraint(Sketcher.Constraint("Vertical", 44))
sketch2.addConstraint(Sketcher.Constraint("Horizontal", 45))
sketch2.addConstraint(Sketcher.Constraint("Vertical", 46))
sketch2.addConstraint(Sketcher.Constraint("Horizontal", 47))
sketch2.addConstraint(Sketcher.Constraint("Vertical", 48))
sketch2.addConstraint(Sketcher.Constraint("Horizontal", 49))
sketch2.addConstraint(Sketcher.Constraint("Vertical", 50))
sketch2.addConstraint(Sketcher.Constraint("Horizontal", 51))
sketch2.addConstraint(Sketcher.Constraint("Parallel", 15, 17))
sketch2.addConstraint(Sketcher.Constraint("Horizontal", 9, 2, 10, 2))
sketch2.addConstraint(Sketcher.Constraint("Horizontal", 2, 2, 11, 2))
sketch2.addConstraint(Sketcher.Constraint("Horizontal", 12, 2, 15, 2))
sketch2.addConstraint(Sketcher.Constraint("Horizontal", 14, 2, 17, 2))
sketch2.addConstraint(Sketcher.Constraint("Horizontal", 8, 2, 21, 2))
sketch2.addConstraint(Sketcher.Constraint("Horizontal", 16, 2, 34, 2))
sketch2.addConstraint(Sketcher.Constraint("Horizontal", 35, 2, 37, 2))
sketch2.addConstraint(Sketcher.Constraint("Horizontal", 10, 2, 39, 2))
sketch2.addConstraint(Sketcher.Constraint("Horizontal", 40, 2, 42, 2))
sketch2.addConstraint(Sketcher.Constraint("Horizontal", 25, 2, 44, 2))
sketch2.addConstraint(Sketcher.Constraint("Horizontal", 38, 2, 46, 2))
sketch2.addConstraint(Sketcher.Constraint("Horizontal", 45, 2, 48, 2))
sketch2.addConstraint(Sketcher.Constraint("Horizontal", 43, 2, 50, 2))
sketch2.addConstraint(Sketcher.Constraint("Vertical", 3, 2, 6, 2))
sketch2.addConstraint(Sketcher.Constraint("Vertical", 5, 2, 8, 2))
sketch2.addConstraint(Sketcher.Constraint("Vertical", 13, 2, 24, 2))
sketch2.addConstraint(Sketcher.Constraint("Equal", 2, 12))
sketch2.addConstraint(Sketcher.Constraint("Equal", 12, 35))
sketch2.addConstraint(Sketcher.Constraint("Equal", 35, 40))
sketch2.addConstraint(Sketcher.Constraint("Equal", 40, 47))
sketch2.addConstraint(Sketcher.Constraint("Equal", 45, 49))
sketch2.addConstraint(Sketcher.Constraint("Equal", 0, 3))
sketch2.addConstraint(Sketcher.Constraint("Equal", 5, 9))
sketch2.addConstraint(Sketcher.Constraint("DistanceY", 1, 2, 1, 1, 3.5))
sketch2.addConstraint(Sketcher.Constraint("DistanceX", 16, 2, 35, 2, 5.25))
sketch2.addConstraint(Sketcher.Constraint("DistanceX", 0, 2, 0, 1, 1.705128))
sketch2.addConstraint(Sketcher.Constraint("DistanceX", 10, 2, 10, 1, 0.700421))
sketch2.addConstraint(Sketcher.Constraint("DistanceX", 14, 1, 14, 2, 0.255208))
sketch2.addConstraint(Sketcher.Constraint("DistanceX", 16, 1, 16, 2, 0.388421))
sketch2.addConstraint(Sketcher.Constraint("DistanceX", 45, 1, 45, 2, 0.762821))
sketch2.addConstraint(Sketcher.Constraint("DistanceX", -1, 1, 4, 2, 14.160301))
sketch2.addConstraint(Sketcher.Constraint("DistanceX", -1, 1, 38, 2, 24.660301))
sketch2.addConstraint(Sketcher.Constraint("DistanceX", -1, 1, 42, 2, 22.033898))
sketch2.addConstraint(Sketcher.Constraint("Distance", 15, 2.064678))
sketch2.addConstraint(Sketcher.Constraint("DistanceX", 38, 1, 38, 2, 0.071514))
sketch2.addConstraint(Sketcher.Constraint("DistanceY", 25, 1, 25, 2, 1.166667))
sketch2.addConstraint(Sketcher.Constraint("DistanceY", 36, 1, 36, 2, 2.748397))
sketch2.addConstraint(Sketcher.Constraint("DistanceY", 41, 2, 41, 1, 2.754708))
sketch2.addConstraint(Sketcher.Constraint("DistanceX", -1, 1, 44, 2, 25.15389))
pocket1 = body.newObject("PartDesign::Pocket", "Pocket")
pocket1.Profile = sketch2
pocket1.Length = 1

doc.recompute()
